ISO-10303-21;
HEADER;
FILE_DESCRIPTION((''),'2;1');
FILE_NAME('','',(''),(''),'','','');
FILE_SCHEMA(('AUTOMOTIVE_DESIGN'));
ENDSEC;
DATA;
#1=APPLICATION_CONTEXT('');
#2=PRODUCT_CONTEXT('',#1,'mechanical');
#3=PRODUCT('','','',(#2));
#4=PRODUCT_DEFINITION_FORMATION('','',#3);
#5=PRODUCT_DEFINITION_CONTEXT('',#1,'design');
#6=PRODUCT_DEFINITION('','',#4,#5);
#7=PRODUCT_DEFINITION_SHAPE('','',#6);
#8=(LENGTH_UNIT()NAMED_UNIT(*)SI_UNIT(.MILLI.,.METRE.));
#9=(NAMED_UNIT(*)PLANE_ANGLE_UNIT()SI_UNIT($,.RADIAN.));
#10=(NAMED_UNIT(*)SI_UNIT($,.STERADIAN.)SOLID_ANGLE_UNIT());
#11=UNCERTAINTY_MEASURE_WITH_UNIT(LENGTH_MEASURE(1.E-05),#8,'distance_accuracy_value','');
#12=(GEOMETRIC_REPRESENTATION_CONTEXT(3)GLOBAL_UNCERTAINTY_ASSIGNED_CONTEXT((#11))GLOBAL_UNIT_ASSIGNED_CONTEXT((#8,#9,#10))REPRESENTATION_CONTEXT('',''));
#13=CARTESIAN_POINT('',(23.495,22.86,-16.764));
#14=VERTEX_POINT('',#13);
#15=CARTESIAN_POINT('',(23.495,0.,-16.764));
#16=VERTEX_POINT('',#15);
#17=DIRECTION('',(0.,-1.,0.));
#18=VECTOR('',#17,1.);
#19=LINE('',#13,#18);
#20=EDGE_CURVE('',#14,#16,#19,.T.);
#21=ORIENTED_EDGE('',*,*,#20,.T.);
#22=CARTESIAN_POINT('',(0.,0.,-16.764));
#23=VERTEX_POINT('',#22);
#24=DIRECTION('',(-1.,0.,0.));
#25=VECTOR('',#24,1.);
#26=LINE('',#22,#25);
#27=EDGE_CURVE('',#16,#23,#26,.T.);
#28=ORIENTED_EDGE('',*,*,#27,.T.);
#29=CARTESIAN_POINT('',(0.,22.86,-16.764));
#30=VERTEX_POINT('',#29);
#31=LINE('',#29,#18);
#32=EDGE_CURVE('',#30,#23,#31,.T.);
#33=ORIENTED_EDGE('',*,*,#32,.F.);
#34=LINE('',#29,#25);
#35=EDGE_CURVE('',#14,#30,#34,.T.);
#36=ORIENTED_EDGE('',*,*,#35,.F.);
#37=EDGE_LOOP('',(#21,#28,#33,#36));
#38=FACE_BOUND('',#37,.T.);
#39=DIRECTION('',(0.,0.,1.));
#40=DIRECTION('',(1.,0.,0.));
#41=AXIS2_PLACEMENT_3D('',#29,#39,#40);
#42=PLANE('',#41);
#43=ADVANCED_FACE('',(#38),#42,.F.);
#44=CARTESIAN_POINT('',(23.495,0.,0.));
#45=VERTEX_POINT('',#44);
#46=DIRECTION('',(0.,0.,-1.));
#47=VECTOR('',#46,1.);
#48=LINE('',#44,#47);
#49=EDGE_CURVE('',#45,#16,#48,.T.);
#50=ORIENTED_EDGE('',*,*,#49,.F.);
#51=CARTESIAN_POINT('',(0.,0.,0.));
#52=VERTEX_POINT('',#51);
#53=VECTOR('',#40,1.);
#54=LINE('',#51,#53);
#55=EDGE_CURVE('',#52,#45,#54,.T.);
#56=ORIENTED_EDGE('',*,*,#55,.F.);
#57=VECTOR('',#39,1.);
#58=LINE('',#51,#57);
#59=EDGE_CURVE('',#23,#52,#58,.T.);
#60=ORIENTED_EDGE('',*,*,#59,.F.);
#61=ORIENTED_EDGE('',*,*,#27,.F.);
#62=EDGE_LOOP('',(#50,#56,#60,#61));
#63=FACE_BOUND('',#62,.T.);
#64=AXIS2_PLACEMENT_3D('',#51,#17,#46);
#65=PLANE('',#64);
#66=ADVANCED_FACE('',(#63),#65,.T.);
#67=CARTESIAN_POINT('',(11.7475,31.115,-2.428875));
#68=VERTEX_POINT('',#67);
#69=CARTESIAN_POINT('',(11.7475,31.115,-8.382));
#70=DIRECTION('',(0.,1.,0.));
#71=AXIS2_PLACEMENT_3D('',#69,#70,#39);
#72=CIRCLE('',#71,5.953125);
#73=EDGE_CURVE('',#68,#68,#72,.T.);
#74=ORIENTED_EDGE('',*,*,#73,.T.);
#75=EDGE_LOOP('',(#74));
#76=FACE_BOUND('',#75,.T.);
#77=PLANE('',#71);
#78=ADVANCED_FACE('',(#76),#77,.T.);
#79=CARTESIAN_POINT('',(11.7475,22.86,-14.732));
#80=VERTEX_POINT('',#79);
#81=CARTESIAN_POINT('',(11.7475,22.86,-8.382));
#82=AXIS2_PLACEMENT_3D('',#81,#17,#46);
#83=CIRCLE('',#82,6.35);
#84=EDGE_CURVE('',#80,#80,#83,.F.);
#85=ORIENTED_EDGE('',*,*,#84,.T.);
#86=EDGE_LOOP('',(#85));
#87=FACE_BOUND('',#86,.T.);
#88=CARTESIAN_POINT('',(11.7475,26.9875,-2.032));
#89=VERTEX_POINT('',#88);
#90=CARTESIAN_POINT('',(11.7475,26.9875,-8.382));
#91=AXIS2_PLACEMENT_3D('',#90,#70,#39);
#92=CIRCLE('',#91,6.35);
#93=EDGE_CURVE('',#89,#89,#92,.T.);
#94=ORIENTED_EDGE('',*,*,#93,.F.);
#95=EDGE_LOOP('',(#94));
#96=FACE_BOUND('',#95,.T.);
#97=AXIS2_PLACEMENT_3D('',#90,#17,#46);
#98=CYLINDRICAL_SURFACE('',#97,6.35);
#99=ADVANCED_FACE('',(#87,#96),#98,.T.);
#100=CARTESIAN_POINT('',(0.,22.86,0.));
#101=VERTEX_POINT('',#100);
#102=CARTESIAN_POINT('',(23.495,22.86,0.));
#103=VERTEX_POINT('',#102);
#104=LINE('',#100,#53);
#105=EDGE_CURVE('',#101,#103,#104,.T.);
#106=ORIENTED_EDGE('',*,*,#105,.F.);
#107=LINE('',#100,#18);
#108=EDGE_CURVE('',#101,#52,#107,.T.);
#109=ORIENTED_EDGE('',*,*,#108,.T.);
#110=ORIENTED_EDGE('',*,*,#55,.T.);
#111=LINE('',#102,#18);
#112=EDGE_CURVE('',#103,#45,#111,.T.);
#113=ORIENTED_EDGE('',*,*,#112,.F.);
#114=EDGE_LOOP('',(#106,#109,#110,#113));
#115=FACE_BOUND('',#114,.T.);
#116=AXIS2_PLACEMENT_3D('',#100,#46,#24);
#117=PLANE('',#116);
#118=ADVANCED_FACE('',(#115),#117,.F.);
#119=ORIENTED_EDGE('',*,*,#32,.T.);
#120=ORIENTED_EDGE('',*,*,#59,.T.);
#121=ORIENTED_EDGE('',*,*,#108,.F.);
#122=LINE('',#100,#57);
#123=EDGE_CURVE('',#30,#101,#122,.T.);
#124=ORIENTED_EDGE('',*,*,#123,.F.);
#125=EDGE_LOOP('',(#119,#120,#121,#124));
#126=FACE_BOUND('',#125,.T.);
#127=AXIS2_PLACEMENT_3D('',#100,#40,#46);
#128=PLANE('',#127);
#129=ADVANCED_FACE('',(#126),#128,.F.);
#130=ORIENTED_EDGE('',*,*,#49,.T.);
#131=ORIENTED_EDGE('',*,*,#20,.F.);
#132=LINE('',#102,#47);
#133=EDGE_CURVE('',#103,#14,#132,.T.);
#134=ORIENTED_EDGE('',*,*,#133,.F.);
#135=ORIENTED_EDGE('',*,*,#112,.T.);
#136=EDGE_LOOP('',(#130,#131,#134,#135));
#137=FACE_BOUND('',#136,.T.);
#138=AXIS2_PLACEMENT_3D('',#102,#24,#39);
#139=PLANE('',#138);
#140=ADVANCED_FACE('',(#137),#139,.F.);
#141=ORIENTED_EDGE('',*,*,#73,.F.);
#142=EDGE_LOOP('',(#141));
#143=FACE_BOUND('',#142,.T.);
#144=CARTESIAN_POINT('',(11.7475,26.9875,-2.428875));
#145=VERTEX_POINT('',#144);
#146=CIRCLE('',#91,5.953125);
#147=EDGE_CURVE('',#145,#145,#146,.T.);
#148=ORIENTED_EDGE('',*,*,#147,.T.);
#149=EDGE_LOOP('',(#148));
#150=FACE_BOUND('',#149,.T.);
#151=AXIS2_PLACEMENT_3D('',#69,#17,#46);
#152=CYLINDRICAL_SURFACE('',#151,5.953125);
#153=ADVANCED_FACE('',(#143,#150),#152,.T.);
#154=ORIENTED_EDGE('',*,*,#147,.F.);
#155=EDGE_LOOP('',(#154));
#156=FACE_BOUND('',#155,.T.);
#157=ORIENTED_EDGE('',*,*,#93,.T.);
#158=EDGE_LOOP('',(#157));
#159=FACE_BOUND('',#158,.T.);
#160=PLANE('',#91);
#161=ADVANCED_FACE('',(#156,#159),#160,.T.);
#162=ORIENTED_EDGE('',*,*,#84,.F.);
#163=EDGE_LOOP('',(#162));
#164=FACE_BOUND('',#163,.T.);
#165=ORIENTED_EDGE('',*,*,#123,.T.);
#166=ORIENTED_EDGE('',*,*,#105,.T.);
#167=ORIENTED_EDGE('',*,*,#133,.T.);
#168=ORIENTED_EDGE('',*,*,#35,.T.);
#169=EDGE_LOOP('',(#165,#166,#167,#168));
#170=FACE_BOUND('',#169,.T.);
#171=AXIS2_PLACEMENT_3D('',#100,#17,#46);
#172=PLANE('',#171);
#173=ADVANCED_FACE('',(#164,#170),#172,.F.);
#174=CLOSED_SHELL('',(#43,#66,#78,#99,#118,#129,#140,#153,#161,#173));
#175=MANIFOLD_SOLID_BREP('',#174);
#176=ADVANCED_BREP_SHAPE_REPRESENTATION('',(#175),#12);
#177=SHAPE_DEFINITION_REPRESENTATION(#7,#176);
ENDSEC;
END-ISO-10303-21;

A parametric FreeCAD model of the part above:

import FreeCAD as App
import Part
import Sketcher
from FreeCAD import Vector
Q = App.Units.Quantity

doc = App.newDocument("Part")
body = doc.addObject("PartDesign::Body", "Body")

sketch1 = body.newObject("Sketcher::SketchObject", "Sketch")
sketch1.AttachmentSupport = (doc.getObject("XZ_Plane"), [""])
sketch1.MapMode = "FlatFace"
sketch1.addGeometry(Part.LineSegment(Vector(0, -17, 0), Vector(0, 0, 0)), False)
sketch1.addGeometry(Part.LineSegment(Vector(0, 0, 0), Vector(23, 0, 0)), False)
sketch1.addGeometry(Part.LineSegment(Vector(23, 0, 0), Vector(23, -17, 0)), False)
sketch1.addGeometry(Part.LineSegment(Vector(23, -17, 0), Vector(0, -17, 0)), False)
sketch1.addConstraint(Sketcher.Constraint("Coincident", 0, 2, 1, 1))
sketch1.addConstraint(Sketcher.Constraint("Coincident", 1, 2, 2, 1))
sketch1.addConstraint(Sketcher.Constraint("Coincident", 2, 2, 3, 1))
sketch1.addConstraint(Sketcher.Constraint("Coincident", 3, 2, 0, 1))
sketch1.addConstraint(Sketcher.Constraint("Vertical", 0))
sketch1.addConstraint(Sketcher.Constraint("Horizontal", 1))
sketch1.addConstraint(Sketcher.Constraint("Vertical", 2))
sketch1.addConstraint(Sketcher.Constraint("Horizontal", 3))
sketch1.addConstraint(Sketcher.Constraint("Coincident", 0, 2, -1, 1))
sketch1.addConstraint(Sketcher.Constraint("DistanceY", 0, 1, 0, 2, Q("0.66 in")))
sketch1.addConstraint(Sketcher.Constraint("DistanceX", 1, 1, 1, 2, Q("0.925 in")))
pad1 = body.newObject("PartDesign::Pad", "Pad")
pad1.Profile = sketch1
pad1.Length = Q("0.9 in")
pad1.Reversed = True

sketch2 = body.newObject("Sketcher::SketchObject", "Sketch001")
sketch2.AttachmentSupport = (doc.getObject("XZ_Plane"), [""])
sketch2.MapMode = "FlatFace"
sketch2.AttachmentOffset = App.Placement(Vector(0, 0, -0.9 * 25.4), App.Rotation())
sketch2.addGeometry(Part.Circle(Vector(12, -8, 0), Vector(0, 0, 1), 6), False)
sketch2.addConstraint(Sketcher.Constraint("Diameter", 0, Q("0.5 in")))
sketch2.addConstraint(Sketcher.Constraint("DistanceY", 0, 3, -1, 1, Q("0.33 in")))
sketch2.addConstraint(Sketcher.Constraint("DistanceX", -1, 1, 0, 3, Q("0.4625 in")))
pad2 = body.newObject("PartDesign::Pad", "Pad001")
pad2.Profile = sketch2
pad2.Length = Q("0.1625 in")
pad2.Reversed = True

sketch3 = body.newObject("Sketcher::SketchObject", "Sketch002")
sketch3.AttachmentSupport = (doc.getObject("XZ_Plane"), [""])
sketch3.MapMode = "FlatFace"
sketch3.AttachmentOffset = App.Placement(Vector(0, 0, -1.0625 * 25.4), App.Rotation())
sketch3.addGeometry(Part.Circle(Vector(12, -8, 0), Vector(0, 0, 1), 6), False)
sketch3.addConstraint(Sketcher.Constraint("Diameter", 0, Q("0.46875 in")))
sketch3.addConstraint(Sketcher.Constraint("DistanceY", 0, 3, -1, 1, Q("0.33 in")))
sketch3.addConstraint(Sketcher.Constraint("DistanceX", -1, 1, 0, 3, Q("0.4625 in")))
pad3 = body.newObject("PartDesign::Pad", "Pad002")
pad3.Profile = sketch3
pad3.Length = Q("0.1625 in")
pad3.Reversed = True

doc.recompute()
